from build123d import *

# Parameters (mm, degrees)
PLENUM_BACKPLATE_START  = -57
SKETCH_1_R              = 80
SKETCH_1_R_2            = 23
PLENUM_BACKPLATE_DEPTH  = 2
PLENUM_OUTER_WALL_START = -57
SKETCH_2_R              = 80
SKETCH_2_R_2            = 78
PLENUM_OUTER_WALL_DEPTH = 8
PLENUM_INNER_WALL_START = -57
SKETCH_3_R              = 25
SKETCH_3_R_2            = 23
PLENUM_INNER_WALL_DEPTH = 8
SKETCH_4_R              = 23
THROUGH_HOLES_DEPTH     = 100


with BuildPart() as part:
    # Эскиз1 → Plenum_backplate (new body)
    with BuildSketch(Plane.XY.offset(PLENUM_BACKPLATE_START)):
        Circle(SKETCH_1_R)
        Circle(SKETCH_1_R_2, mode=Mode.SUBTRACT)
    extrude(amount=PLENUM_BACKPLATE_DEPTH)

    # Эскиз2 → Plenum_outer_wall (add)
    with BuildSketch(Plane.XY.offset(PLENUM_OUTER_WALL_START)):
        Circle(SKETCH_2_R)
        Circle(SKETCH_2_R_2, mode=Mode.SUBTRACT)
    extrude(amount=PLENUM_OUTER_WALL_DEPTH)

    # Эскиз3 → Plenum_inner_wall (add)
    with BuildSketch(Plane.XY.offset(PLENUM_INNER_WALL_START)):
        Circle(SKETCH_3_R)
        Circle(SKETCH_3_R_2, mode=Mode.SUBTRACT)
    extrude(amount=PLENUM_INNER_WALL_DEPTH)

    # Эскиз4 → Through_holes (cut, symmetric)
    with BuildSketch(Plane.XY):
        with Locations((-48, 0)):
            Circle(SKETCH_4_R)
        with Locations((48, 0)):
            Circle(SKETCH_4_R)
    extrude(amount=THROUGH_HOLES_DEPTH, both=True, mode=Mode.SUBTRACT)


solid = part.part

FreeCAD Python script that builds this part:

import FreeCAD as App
import Part
import Sketcher
from FreeCAD import Vector

doc = App.newDocument("Part")
params = doc.addObject("Spreadsheet::Sheet", "Params")
for row, (alias, value) in enumerate([
    ("sketch1_diameter", "160 mm"),
    ("sketch1_diameter2", "46 mm"),
    ("pad1_length", "2 mm"),
    ("sketch2_diameter", "160 mm"),
    ("sketch2_diameter2", "156 mm"),
    ("pad2_length", "8 mm"),
    ("sketch3_diameter", "50 mm"),
    ("sketch3_diameter2", "46 mm"),
    ("pad3_length", "8 mm"),
    ("sketch4_diameter", "46 mm"),
    ("pocket1_length", "200 mm"),
], start=1):
    params.set(f"A{row}", alias)
    params.set(f"B{row}", "=" + value)
    params.setAlias(f"B{row}", alias)

body = doc.addObject("PartDesign::Body", "Body")

sketch1 = body.newObject("Sketcher::SketchObject", "Sketch")
sketch1.AttachmentSupport = (doc.getObject("XY_Plane"), [""])
sketch1.MapMode = "FlatFace"
sketch1.AttachmentOffset = App.Placement(Vector(0, 0, -57), App.Rotation())
sketch1.addGeometry([
    Part.Circle(Vector(0, 0, 0), Vector(0, 0, 1), 80),
    Part.Circle(Vector(0, 0, 0), Vector(0, 0, 1), 23),
], False)
sketch1.addConstraint([
    Sketcher.Constraint("Coincident", 0, 3, -1, 1),
    Sketcher.Constraint("Coincident", 1, 3, -1, 1),
    Sketcher.Constraint("Diameter", 0, 160.0),
    Sketcher.Constraint("Diameter", 1, 46.0),
])
sketch1.setExpression("Constraints[2]", "Params.sketch1_diameter")
sketch1.setExpression("Constraints[3]", "Params.sketch1_diameter2")
pad1 = body.newObject("PartDesign::Pad", "Pad")
pad1.Profile = sketch1
pad1.setExpression("Length", "Params.pad1_length")

sketch2 = body.newObject("Sketcher::SketchObject", "Sketch001")
sketch2.AttachmentSupport = (doc.getObject("XY_Plane"), [""])
sketch2.MapMode = "FlatFace"
sketch2.AttachmentOffset = App.Placement(Vector(0, 0, -57), App.Rotation())
sketch2.addGeometry([
    Part.Circle(Vector(0, 0, 0), Vector(0, 0, 1), 80),
    Part.Circle(Vector(0, 0, 0), Vector(0, 0, 1), 78),
], False)
sketch2.addConstraint([
    Sketcher.Constraint("Coincident", 0, 3, -1, 1),
    Sketcher.Constraint("Coincident", 1, 3, -1, 1),
    Sketcher.Constraint("Diameter", 0, 160.0),
    Sketcher.Constraint("Diameter", 1, 156.0),
])
sketch2.setExpression("Constraints[2]", "Params.sketch2_diameter")
sketch2.setExpression("Constraints[3]", "Params.sketch2_diameter2")
pad2 = body.newObject("PartDesign::Pad", "Pad001")
pad2.Profile = sketch2
pad2.setExpression("Length", "Params.pad2_length")

sketch3 = body.newObject("Sketcher::SketchObject", "Sketch002")
sketch3.AttachmentSupport = (doc.getObject("XY_Plane"), [""])
sketch3.MapMode = "FlatFace"
sketch3.AttachmentOffset = App.Placement(Vector(0, 0, -57), App.Rotation())
sketch3.addGeometry([
    Part.Circle(Vector(0, 0, 0), Vector(0, 0, 1), 25),
    Part.Circle(Vector(0, 0, 0), Vector(0, 0, 1), 23),
], False)
sketch3.addConstraint([
    Sketcher.Constraint("Coincident", 0, 3, -1, 1),
    Sketcher.Constraint("Coincident", 1, 3, -1, 1),
    Sketcher.Constraint("Diameter", 0, 50.0),
    Sketcher.Constraint("Diameter", 1, 46.0),
])
sketch3.setExpression("Constraints[2]", "Params.sketch3_diameter")
sketch3.setExpression("Constraints[3]", "Params.sketch3_diameter2")
pad3 = body.newObject("PartDesign::Pad", "Pad002")
pad3.Profile = sketch3
pad3.setExpression("Length", "Params.pad3_length")

sketch4 = body.newObject("Sketcher::SketchObject", "Sketch003")
sketch4.AttachmentSupport = (doc.getObject("XY_Plane"), [""])
sketch4.MapMode = "FlatFace"
sketch4.addGeometry([
    Part.Circle(Vector(-48, 0, 0), Vector(0, 0, 1), 23),
    Part.Circle(Vector(48, 0, 0), Vector(0, 0, 1), 23),
], False)
sketch4.addConstraint([
    Sketcher.Constraint("Equal", 0, 1),
    Sketcher.Constraint("Symmetric", 0, 3, 1, 3, -1, 1),
    Sketcher.Constraint("PointOnObject", 0, 3, -1),
    Sketcher.Constraint("Diameter", 0, 46.0),
    Sketcher.Constraint("DistanceX", 0, 3, -1, 1, 48.0),
])
sketch4.setExpression("Constraints[3]", "Params.sketch4_diameter")
pocket1 = body.newObject("PartDesign::Pocket", "Pocket")
pocket1.Profile = sketch4
pocket1.setExpression("Length", "Params.pocket1_length")
pocket1.Midplane = True

doc.recompute()
